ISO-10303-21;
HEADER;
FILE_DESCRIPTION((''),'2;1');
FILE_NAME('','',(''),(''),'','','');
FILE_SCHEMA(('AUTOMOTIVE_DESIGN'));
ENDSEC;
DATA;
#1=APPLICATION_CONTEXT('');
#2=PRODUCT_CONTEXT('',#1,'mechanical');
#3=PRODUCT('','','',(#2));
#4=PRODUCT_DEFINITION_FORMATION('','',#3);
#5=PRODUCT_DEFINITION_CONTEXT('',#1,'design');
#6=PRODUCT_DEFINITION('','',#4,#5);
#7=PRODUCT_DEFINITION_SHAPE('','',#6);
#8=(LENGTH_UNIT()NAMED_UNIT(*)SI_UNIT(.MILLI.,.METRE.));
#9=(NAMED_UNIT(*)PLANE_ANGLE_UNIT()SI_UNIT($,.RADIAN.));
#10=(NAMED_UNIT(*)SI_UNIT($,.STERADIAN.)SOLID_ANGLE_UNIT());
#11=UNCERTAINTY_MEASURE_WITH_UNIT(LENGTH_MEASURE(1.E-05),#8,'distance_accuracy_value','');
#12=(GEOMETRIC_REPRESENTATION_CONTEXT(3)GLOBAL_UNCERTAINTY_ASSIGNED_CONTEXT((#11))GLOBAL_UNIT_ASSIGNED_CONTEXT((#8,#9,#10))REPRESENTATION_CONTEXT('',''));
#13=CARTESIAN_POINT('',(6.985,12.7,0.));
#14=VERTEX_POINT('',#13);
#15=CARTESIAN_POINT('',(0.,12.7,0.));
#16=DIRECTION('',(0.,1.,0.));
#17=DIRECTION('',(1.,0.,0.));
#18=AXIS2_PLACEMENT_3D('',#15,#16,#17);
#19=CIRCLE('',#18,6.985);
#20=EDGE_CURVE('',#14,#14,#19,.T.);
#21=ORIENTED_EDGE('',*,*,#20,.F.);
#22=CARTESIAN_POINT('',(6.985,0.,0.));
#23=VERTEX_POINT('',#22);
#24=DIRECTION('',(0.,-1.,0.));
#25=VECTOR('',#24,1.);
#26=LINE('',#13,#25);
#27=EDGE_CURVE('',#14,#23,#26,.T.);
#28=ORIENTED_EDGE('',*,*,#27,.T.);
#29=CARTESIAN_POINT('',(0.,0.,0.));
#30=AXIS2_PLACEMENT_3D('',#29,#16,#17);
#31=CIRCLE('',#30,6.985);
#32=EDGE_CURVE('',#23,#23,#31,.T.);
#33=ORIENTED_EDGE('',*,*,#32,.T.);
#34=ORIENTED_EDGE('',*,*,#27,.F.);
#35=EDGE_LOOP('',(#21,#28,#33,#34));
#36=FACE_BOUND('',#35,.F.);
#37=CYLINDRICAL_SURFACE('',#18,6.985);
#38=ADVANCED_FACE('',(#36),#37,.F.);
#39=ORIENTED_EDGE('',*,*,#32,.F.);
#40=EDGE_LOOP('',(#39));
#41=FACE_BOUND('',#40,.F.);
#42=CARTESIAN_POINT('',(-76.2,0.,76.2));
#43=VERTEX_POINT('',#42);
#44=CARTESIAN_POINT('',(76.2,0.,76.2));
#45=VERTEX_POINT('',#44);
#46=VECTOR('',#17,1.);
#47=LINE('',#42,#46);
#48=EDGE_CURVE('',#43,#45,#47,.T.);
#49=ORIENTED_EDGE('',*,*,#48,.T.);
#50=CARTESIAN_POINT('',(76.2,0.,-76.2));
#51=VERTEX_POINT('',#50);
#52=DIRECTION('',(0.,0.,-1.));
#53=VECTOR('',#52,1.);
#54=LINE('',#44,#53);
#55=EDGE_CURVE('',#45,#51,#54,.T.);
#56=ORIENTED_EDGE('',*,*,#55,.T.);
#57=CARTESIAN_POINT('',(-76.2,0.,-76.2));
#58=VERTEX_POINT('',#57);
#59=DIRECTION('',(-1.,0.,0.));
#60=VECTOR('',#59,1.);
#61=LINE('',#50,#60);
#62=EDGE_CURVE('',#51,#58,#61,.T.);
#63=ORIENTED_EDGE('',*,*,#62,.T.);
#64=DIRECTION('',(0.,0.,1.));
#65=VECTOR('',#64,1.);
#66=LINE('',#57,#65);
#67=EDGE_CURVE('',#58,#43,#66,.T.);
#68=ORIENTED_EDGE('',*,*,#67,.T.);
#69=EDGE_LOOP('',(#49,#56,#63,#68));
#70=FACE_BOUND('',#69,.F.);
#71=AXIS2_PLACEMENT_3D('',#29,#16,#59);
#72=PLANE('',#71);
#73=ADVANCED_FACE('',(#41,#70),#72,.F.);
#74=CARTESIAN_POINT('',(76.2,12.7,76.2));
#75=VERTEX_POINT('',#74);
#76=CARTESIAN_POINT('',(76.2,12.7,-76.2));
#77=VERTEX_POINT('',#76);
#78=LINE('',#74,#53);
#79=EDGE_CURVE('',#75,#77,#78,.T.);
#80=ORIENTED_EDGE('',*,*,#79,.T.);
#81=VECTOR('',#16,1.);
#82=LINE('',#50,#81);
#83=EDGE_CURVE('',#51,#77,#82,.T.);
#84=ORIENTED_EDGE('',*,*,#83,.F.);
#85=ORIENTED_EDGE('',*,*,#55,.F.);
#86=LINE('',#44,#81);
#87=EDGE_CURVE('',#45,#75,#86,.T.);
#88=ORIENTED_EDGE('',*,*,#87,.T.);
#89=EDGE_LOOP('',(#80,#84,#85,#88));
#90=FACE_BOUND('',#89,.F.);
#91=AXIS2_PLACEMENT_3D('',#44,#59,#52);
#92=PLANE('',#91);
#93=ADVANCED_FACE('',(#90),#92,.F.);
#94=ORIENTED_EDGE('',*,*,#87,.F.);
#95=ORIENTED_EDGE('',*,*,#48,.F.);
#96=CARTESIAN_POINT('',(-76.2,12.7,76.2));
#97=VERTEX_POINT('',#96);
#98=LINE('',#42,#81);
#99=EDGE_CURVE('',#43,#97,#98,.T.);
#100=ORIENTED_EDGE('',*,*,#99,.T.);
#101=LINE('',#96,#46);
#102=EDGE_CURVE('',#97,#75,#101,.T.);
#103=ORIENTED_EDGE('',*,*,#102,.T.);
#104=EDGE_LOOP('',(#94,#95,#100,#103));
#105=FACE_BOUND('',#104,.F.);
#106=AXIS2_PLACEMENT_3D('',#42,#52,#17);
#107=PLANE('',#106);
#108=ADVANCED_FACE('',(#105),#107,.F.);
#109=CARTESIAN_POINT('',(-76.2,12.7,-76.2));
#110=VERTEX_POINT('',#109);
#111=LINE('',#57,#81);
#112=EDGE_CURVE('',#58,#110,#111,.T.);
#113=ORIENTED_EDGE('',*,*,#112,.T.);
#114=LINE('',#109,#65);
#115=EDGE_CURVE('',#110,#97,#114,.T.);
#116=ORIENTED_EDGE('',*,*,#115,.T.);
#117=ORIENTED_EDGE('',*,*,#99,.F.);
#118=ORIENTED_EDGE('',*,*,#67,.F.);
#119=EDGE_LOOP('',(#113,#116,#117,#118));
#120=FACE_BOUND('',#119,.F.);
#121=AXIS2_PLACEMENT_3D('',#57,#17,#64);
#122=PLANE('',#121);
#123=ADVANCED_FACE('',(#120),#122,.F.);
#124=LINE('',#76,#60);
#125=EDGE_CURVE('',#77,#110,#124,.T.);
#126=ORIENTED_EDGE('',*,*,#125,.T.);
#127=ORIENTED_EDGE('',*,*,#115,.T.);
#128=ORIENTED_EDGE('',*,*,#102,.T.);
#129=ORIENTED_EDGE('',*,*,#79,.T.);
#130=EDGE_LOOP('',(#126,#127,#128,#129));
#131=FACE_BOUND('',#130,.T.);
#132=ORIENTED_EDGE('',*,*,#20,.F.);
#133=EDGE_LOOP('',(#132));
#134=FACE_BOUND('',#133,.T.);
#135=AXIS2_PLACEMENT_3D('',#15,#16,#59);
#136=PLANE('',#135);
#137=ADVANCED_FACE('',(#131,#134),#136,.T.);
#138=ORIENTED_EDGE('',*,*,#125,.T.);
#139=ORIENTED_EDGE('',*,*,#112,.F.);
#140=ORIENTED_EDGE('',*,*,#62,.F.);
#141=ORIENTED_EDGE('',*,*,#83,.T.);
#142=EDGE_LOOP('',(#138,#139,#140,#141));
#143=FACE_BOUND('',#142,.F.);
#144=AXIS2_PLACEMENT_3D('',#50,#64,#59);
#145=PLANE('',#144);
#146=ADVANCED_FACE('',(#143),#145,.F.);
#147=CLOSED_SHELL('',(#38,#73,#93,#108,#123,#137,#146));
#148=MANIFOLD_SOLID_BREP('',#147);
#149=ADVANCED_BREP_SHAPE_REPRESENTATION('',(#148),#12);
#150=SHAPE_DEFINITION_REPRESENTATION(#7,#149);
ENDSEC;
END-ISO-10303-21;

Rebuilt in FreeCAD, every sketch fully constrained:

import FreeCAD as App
import Part
import Sketcher

V = App.Vector
Q = App.Units.Quantity


def add_polygon(sketch, points):
    """Adds a closed chain of lines whose ends are joined by coincident constraints."""
    first, n = sketch.GeometryCount, len(points)
    for a, b in zip(points, points[1:] + points[:1]):
        sketch.addGeometry(Part.LineSegment(App.Vector(*a, 0), App.Vector(*b, 0)), False)
    for i in range(n):
        sketch.addConstraint(Sketcher.Constraint("Coincident", first + i, 2, first + (i + 1) % n, 1))

doc = App.newDocument("Part")
params = doc.addObject("Spreadsheet::Sheet", "Params")
for row, (alias, value) in enumerate([
    ("sketch1_width", "6 in"),
    ("pad1_length", "0.5 in"),
    ("sketch2_diameter", "0.55 in"),
], start=1):
    params.set(f"A{row}", alias)
    params.set(f"B{row}", "=" + value)
    params.setAlias(f"B{row}", alias)

body = doc.addObject("PartDesign::Body", "Body")

# Sketch on XZ plane
sketch1 = body.newObject("Sketcher::SketchObject", "Sketch")
sketch1.AttachmentSupport = (doc.getObject("XZ_Plane"), [""])
sketch1.MapMode = "FlatFace"
add_polygon(sketch1, [(-76, -76), (-76, 76), (76, 76), (76, -76)])  # lines 0-3
sketch1.addConstraint(Sketcher.Constraint("Vertical", 0))
sketch1.addConstraint(Sketcher.Constraint("Horizontal", 1))
sketch1.addConstraint(Sketcher.Constraint("Vertical", 2))
sketch1.addConstraint(Sketcher.Constraint("Horizontal", 3))
sketch1.addConstraint(Sketcher.Constraint("Symmetric", 0, 2, 2, 2, -1, 1))
sketch1.addConstraint(Sketcher.Constraint("Equal", 3, 0))
sketch1.addConstraint(Sketcher.Constraint("DistanceX", 1, 1, 1, 2, Q("6 in")))
sketch1.setExpression("Constraints[10]", "Params.sketch1_width")
pad1 = body.newObject("PartDesign::Pad", "Pad")
pad1.Profile = sketch1
pad1.setExpression("Length", "Params.pad1_length")
pad1.Reversed = True

# Sketch on XZ plane
sketch2 = body.newObject("Sketcher::SketchObject", "Sketch001")
sketch2.AttachmentSupport = (doc.getObject("XZ_Plane"), [""])
sketch2.MapMode = "FlatFace"
sketch2.AttachmentOffset = App.Placement(V(0, 0, -0.5 * 25.4), App.Rotation())
sketch2.addGeometry(Part.Circle(V(0, 0, 0), V(0, 0, 1), 7), False)
sketch2.addConstraint(Sketcher.Constraint("Coincident", 0, 3, -1, 1))
sketch2.addConstraint(Sketcher.Constraint("Diameter", 0, Q("0.55 in")))
sketch2.setExpression("Constraints[1]", "Params.sketch2_diameter")
pocket1 = body.newObject("PartDesign::Pocket", "Pocket")
pocket1.Profile = sketch2
pocket1.Type = "ThroughAll"
pocket1.Reversed = True

doc.recompute()
